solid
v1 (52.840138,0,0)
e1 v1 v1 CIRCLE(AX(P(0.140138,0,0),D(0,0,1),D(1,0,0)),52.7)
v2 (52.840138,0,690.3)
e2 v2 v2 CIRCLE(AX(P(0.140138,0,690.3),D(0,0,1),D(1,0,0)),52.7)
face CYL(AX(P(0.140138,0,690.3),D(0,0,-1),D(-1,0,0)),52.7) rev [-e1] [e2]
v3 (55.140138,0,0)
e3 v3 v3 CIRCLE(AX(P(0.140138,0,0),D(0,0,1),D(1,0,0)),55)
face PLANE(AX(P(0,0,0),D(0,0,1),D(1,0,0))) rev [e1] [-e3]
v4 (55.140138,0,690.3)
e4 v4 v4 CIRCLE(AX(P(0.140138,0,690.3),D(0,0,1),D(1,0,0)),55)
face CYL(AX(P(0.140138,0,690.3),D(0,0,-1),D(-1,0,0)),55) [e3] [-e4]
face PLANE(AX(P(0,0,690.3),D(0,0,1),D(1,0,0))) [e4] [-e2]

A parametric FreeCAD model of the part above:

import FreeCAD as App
import Part
import Sketcher
Q = App.Units.Quantity

doc = App.newDocument("Part")
params = doc.addObject("Spreadsheet::Sheet", "Params")
for row, (alias, value) in enumerate([
    ("sketch1_diameter", "110 mm"),
    ("sketch1_diameter2", "105.4 mm"),
    ("pad1_length", "690.3 mm"),
], start=1):
    params.set(f"A{row}", alias)
    params.set(f"B{row}", "=" + value)
    params.setAlias(f"B{row}", alias)

body = doc.addObject("PartDesign::Body", "Body")

sketch1 = body.newObject("Sketcher::SketchObject", "Sketch")
sketch1.AttachmentSupport = (doc.getObject("XY_Plane"), [""])
sketch1.MapMode = "FlatFace"
sketch1.addGeometry([
    Part.Circle(App.Vector(0.140138, 0, 0), App.Vector(0, 0, 1), 55),
    Part.Circle(App.Vector(0.140138, 0, 0), App.Vector(0, 0, 1), 52.7),
], False)
sketch1.addConstraint([
    Sketcher.Constraint("Coincident", 1, 3, 0, 3),
    Sketcher.Constraint("PointOnObject", 0, 3, -1),
    Sketcher.Constraint("Diameter", 0, Q("110 mm")),
    Sketcher.Constraint("Diameter", 1, Q("105.4 mm")),
    Sketcher.Constraint("DistanceX", -1, 1, 0, 3, Q("0.140138 mm")),
])
sketch1.setExpression("Constraints[2]", "Params.sketch1_diameter")
sketch1.setExpression("Constraints[3]", "Params.sketch1_diameter2")
pad1 = body.newObject("PartDesign::Pad", "Pad")
pad1.Profile = sketch1
pad1.setExpression("Length", "Params.pad1_length")

doc.recompute()
